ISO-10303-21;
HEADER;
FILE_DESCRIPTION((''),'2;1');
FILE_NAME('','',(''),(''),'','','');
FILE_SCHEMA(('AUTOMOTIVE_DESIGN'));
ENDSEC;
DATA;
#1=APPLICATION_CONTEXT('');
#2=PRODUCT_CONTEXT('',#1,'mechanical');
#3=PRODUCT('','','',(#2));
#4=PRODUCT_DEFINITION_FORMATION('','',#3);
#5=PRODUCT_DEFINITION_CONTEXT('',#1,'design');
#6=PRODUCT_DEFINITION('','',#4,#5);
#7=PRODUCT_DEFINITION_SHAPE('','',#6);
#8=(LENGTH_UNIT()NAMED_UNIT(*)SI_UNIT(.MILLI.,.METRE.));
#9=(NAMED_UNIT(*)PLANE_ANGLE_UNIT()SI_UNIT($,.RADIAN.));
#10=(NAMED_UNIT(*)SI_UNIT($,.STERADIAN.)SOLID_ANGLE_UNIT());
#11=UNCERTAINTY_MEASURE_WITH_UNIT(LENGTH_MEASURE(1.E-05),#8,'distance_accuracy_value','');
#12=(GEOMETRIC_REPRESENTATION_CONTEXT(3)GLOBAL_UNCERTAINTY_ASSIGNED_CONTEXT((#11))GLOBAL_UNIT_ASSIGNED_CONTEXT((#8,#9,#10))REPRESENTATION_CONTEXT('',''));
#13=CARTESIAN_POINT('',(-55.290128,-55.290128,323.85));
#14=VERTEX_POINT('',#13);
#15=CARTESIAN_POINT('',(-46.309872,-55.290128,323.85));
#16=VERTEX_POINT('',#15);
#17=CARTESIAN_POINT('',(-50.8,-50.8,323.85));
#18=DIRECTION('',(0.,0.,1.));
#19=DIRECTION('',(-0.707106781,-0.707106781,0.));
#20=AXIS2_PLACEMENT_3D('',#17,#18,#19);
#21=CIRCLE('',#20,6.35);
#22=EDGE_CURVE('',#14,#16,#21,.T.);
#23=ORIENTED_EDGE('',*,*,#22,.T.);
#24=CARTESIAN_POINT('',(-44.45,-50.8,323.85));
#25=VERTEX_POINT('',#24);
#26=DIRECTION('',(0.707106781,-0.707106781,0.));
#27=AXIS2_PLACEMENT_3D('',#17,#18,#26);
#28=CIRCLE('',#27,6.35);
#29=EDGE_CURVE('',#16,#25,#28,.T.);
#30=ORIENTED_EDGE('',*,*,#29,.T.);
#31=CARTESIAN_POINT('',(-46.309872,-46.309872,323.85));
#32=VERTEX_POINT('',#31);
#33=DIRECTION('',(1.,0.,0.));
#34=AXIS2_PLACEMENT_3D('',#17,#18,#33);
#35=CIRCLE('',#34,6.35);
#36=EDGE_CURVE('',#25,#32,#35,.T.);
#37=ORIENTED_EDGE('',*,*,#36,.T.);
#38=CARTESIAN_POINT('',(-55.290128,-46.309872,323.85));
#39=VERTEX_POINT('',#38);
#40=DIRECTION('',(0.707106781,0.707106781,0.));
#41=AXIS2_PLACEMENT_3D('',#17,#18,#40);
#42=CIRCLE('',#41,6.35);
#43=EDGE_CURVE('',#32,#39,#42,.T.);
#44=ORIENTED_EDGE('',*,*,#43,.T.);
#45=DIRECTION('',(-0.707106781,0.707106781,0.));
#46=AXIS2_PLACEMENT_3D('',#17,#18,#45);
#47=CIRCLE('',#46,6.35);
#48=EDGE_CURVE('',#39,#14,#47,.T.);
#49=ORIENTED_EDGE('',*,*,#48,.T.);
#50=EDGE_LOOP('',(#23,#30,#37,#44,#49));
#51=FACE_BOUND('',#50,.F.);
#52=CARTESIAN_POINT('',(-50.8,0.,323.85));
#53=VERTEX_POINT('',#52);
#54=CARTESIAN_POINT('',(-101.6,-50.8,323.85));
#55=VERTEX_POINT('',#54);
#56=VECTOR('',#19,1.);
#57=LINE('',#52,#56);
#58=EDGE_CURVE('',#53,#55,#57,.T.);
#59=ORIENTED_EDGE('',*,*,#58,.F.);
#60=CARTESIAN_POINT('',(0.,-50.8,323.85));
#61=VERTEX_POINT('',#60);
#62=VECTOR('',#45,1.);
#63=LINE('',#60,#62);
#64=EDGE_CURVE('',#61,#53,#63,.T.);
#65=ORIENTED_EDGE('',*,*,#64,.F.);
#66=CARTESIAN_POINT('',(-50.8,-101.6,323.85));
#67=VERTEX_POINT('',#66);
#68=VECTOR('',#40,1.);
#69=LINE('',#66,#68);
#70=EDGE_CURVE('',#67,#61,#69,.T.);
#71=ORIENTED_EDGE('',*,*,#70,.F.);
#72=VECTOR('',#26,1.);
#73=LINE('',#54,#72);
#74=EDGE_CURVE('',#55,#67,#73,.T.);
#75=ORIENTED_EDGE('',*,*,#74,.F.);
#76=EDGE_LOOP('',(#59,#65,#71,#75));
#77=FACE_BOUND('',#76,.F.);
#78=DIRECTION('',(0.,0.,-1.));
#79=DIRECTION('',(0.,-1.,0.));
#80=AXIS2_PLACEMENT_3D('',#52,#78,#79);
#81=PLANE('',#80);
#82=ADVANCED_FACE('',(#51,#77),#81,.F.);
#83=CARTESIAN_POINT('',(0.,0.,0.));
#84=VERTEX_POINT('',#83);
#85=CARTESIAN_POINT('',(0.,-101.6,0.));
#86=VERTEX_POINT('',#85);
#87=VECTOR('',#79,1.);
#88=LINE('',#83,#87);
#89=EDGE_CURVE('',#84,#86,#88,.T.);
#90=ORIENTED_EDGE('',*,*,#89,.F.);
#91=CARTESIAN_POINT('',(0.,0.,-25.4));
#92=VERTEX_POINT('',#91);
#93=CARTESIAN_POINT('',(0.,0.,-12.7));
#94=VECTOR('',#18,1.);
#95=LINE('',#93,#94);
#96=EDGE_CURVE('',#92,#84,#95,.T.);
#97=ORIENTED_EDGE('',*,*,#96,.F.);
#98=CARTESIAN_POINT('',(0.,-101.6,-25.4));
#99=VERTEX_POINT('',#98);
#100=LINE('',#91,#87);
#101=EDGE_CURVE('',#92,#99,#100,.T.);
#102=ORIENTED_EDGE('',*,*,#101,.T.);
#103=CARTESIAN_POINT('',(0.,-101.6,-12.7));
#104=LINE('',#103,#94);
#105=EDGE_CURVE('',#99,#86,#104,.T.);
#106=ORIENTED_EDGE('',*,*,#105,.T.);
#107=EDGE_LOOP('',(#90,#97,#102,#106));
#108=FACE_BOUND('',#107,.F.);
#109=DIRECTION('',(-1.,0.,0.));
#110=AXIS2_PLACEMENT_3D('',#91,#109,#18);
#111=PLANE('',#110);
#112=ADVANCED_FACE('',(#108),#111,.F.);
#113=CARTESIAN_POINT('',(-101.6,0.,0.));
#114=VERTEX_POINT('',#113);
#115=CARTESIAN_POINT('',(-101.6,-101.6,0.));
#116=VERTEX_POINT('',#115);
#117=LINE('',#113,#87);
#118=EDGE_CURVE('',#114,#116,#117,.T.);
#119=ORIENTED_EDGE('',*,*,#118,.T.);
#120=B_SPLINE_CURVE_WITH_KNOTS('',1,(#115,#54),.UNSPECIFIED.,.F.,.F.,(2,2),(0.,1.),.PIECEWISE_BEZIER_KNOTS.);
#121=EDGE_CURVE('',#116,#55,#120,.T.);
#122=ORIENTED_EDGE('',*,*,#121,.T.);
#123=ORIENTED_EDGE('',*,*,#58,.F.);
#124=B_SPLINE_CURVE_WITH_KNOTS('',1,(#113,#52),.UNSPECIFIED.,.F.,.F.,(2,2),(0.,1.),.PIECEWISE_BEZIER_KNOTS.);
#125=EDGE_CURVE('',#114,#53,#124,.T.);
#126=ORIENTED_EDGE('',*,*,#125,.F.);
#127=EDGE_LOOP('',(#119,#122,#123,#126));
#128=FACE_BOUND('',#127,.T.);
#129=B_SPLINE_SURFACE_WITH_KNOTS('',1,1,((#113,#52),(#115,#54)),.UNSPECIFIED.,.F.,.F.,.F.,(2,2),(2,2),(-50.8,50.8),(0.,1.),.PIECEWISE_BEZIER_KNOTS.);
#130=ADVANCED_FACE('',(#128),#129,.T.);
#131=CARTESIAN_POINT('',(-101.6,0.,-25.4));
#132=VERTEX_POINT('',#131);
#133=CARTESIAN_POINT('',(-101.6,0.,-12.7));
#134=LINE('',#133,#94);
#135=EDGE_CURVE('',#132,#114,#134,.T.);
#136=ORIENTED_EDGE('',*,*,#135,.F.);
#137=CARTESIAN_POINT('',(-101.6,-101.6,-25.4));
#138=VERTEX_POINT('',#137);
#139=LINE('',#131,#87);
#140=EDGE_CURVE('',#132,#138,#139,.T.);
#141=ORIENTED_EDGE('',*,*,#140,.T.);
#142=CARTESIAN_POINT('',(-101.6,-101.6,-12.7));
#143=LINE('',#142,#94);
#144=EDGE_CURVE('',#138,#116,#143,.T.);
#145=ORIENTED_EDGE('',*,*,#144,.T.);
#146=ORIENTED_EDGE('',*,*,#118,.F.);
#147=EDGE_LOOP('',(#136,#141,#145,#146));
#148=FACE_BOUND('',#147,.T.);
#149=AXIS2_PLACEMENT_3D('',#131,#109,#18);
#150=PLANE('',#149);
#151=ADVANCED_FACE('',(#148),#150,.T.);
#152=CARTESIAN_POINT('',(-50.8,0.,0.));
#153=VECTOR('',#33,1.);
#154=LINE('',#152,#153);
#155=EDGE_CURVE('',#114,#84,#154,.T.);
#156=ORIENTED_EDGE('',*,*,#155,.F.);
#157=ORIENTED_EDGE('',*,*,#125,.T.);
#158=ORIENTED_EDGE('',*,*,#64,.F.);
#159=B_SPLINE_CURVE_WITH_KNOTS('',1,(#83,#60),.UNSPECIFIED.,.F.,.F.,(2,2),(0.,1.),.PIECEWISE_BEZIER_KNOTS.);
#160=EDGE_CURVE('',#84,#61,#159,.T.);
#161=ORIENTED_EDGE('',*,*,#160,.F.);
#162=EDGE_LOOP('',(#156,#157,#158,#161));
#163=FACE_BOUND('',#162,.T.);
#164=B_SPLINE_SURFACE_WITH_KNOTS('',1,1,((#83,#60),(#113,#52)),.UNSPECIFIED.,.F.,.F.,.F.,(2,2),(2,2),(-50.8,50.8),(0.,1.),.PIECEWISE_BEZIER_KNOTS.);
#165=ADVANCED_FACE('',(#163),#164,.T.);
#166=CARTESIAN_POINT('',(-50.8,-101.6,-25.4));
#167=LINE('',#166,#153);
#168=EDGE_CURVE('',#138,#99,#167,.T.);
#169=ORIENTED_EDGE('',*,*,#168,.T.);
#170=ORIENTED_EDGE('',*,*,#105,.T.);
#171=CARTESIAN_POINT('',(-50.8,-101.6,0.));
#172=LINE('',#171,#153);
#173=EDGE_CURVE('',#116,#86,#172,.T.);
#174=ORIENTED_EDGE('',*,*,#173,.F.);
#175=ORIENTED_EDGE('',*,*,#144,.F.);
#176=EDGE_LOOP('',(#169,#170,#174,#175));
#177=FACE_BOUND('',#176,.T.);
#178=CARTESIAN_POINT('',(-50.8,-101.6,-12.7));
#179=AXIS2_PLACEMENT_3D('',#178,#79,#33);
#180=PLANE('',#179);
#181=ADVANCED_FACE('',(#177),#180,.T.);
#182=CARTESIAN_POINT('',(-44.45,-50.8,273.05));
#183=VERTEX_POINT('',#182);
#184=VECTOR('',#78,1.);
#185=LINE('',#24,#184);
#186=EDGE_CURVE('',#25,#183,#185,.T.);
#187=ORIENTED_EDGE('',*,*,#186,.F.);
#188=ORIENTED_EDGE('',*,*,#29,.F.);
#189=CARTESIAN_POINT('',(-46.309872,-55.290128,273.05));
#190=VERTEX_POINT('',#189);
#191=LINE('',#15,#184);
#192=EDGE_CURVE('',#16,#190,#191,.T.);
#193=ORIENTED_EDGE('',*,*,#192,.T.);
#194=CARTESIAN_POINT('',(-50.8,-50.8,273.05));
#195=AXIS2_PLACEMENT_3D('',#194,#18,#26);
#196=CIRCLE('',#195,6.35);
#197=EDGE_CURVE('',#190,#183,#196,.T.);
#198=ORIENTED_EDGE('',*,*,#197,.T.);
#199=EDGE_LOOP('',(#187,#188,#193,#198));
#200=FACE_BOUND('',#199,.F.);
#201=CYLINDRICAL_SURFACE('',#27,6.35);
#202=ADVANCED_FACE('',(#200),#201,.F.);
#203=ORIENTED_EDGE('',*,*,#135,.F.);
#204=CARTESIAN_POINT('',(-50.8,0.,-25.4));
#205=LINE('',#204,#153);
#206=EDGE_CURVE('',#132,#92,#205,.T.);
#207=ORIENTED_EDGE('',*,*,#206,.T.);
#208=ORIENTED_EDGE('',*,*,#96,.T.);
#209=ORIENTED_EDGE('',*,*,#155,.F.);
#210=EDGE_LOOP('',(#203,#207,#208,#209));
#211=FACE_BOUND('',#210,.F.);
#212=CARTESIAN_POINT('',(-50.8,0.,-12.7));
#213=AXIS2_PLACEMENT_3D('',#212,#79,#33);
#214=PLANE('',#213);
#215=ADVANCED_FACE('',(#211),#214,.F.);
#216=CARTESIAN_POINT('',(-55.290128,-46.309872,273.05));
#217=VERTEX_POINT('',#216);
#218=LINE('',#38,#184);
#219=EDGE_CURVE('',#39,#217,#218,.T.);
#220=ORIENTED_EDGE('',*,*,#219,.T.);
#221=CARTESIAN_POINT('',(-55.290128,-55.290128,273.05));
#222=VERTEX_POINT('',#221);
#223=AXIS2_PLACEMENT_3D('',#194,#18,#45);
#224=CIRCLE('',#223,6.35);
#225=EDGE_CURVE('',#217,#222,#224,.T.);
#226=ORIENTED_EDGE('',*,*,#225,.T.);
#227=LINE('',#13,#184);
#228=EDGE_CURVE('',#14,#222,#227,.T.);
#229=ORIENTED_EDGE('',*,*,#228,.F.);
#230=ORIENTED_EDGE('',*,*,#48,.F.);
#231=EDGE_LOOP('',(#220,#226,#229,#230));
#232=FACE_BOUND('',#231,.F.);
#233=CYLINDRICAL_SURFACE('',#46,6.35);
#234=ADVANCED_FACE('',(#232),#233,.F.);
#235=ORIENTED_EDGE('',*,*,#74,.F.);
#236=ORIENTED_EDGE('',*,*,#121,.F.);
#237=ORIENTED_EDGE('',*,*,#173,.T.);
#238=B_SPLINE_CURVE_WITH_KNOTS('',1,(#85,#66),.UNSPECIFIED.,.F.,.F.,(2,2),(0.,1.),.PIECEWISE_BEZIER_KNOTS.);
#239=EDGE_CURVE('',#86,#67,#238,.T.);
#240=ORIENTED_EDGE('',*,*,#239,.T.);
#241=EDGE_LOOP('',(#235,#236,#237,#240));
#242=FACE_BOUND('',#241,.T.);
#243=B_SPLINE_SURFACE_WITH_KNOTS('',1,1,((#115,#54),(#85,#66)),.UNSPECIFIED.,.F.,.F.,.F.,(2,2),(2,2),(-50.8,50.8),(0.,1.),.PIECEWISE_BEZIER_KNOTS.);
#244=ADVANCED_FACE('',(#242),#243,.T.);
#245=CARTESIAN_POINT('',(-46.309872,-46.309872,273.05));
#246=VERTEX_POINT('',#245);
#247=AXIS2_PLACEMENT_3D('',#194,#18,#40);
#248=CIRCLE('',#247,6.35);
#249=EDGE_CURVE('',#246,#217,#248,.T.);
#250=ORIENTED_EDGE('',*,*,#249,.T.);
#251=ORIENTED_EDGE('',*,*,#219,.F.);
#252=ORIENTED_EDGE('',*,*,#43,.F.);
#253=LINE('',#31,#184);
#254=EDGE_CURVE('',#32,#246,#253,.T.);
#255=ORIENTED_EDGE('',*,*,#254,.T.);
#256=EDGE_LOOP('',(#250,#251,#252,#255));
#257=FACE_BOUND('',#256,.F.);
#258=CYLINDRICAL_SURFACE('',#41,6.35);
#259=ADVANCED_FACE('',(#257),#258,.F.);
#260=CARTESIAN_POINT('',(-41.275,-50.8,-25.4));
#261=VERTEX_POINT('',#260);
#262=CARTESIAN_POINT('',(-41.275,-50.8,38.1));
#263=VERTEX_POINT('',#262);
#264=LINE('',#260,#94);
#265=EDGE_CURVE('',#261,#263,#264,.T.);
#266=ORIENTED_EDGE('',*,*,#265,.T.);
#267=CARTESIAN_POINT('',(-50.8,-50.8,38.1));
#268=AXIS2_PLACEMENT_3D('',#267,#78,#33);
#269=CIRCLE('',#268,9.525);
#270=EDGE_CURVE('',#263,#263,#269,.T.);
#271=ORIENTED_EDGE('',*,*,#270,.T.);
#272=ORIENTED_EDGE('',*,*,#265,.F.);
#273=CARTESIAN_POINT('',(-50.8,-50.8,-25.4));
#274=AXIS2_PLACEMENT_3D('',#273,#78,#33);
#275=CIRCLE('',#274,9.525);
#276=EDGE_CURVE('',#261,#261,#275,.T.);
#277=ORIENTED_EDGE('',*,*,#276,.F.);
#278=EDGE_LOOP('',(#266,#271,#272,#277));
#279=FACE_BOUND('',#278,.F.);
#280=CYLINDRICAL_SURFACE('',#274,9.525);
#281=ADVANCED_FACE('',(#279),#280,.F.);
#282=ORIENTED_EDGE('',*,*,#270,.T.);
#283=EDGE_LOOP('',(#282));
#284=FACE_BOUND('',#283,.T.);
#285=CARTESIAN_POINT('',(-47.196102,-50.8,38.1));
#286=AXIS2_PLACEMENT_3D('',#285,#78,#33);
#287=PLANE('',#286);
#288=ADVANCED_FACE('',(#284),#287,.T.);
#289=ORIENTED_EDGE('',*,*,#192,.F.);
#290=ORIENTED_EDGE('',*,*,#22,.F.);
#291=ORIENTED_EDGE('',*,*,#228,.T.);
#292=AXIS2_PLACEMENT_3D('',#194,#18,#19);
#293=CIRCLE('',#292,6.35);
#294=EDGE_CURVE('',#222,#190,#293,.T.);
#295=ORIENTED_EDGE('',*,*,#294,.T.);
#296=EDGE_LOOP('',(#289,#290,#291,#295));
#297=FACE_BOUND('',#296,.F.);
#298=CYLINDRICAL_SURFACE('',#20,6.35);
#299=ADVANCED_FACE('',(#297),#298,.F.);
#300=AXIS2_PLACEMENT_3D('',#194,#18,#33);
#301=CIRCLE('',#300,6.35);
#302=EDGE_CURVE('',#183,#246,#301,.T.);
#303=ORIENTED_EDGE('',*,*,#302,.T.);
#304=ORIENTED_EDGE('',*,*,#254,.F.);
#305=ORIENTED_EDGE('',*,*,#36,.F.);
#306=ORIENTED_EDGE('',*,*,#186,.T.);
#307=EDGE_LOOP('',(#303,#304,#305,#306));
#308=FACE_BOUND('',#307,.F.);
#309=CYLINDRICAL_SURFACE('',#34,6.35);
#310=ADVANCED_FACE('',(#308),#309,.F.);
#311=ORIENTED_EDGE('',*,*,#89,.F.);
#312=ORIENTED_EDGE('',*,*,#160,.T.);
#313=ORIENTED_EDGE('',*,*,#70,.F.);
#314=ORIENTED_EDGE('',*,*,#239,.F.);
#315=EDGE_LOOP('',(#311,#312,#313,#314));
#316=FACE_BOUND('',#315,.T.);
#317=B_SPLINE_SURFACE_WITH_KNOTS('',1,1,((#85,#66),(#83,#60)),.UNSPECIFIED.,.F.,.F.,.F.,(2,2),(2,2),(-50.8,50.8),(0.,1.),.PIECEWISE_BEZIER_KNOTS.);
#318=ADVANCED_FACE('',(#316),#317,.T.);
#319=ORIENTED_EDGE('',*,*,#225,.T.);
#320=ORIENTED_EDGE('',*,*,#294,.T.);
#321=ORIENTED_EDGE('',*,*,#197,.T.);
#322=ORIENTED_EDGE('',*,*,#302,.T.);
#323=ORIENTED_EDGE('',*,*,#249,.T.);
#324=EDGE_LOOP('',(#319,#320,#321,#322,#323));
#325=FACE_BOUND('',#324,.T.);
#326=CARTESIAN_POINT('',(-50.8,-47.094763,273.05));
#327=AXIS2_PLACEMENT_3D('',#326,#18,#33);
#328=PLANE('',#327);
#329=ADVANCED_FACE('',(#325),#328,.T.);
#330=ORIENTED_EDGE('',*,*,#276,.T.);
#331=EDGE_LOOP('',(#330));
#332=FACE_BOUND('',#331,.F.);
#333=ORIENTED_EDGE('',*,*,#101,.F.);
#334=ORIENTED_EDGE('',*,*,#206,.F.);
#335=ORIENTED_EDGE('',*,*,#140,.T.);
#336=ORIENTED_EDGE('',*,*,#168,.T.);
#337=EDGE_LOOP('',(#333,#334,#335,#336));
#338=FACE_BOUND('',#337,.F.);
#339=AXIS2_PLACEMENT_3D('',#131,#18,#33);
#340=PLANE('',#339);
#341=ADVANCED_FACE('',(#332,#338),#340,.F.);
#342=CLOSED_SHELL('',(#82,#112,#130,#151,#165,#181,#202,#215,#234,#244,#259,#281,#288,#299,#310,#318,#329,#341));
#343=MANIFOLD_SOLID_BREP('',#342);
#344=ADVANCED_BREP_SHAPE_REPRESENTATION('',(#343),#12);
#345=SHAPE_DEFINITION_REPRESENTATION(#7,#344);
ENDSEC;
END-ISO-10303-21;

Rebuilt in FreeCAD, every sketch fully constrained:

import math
import FreeCAD as App
import Part
import Sketcher
Q = App.Units.Quantity

doc = App.newDocument("Part")
body = doc.addObject("PartDesign::Body", "Body")

sketch1 = body.newObject("Sketcher::SketchObject", "Sketch")
sketch1.AttachmentSupport = (doc.getObject("XZ_Plane"), [""])
sketch1.MapMode = "FlatFace"
sketch1.addGeometry([
    Part.LineSegment(App.Vector(-101.6, 0, 0), App.Vector(-101.6, -25.4, 0)),
    Part.LineSegment(App.Vector(-101.6, -25.4, 0), App.Vector(0, -25.4, 0)),
    Part.LineSegment(App.Vector(0, -25.4, 0), App.Vector(0, 0, 0)),
    Part.LineSegment(App.Vector(0, 0, 0), App.Vector(-101.6, 0, 0)),
], False)
sketch1.addConstraint([
    Sketcher.Constraint("Coincident", 0, 2, 1, 1),
    Sketcher.Constraint("Coincident", 1, 2, 2, 1),
    Sketcher.Constraint("Coincident", 2, 2, 3, 1),
    Sketcher.Constraint("Coincident", 3, 2, 0, 1),
    Sketcher.Constraint("Vertical", 0),
    Sketcher.Constraint("Horizontal", 1),
    Sketcher.Constraint("Vertical", 2),
    Sketcher.Constraint("Horizontal", 3),
    Sketcher.Constraint("Coincident", 2, 2, -1, 1),
    Sketcher.Constraint("DistanceX", 1, 1, 1, 2, Q("4 in")),
    Sketcher.Constraint("DistanceY", 0, 2, 0, 1, Q("1 in")),
])
pad1 = body.newObject("PartDesign::Pad", "Pad")
pad1.Profile = sketch1
pad1.Length = Q("4 in")

sketch2 = body.newObject("Sketcher::SketchObject", "Sketch001")
sketch2.AttachmentSupport = (doc.getObject("XY_Plane"), [""])
sketch2.MapMode = "FlatFace"
sketch2.addGeometry([
    Part.LineSegment(App.Vector(-101.6, 0, 0), App.Vector(-101.6, -101.6, 0)),
    Part.LineSegment(App.Vector(-101.6, -101.6, 0), App.Vector(0, -101.6, 0)),
    Part.LineSegment(App.Vector(0, -101.6, 0), App.Vector(0, 0, 0)),
    Part.LineSegment(App.Vector(0, 0, 0), App.Vector(-101.6, 0, 0)),
], False)
sketch2.addConstraint([
    Sketcher.Constraint("Coincident", 0, 2, 1, 1),
    Sketcher.Constraint("Coincident", 1, 2, 2, 1),
    Sketcher.Constraint("Coincident", 2, 2, 3, 1),
    Sketcher.Constraint("Coincident", 3, 2, 0, 1),
    Sketcher.Constraint("Vertical", 0),
    Sketcher.Constraint("Horizontal", 1),
    Sketcher.Constraint("Vertical", 2),
    Sketcher.Constraint("Horizontal", 3),
    Sketcher.Constraint("Coincident", 2, 2, -1, 1),
    Sketcher.Constraint("Equal", 3, 0),
    Sketcher.Constraint("DistanceX", 1, 1, 1, 2, Q("4 in")),
])

sketch3 = body.newObject("Sketcher::SketchObject", "Sketch002")
sketch3.AttachmentSupport = (doc.getObject("XY_Plane"), [""])
sketch3.MapMode = "FlatFace"
sketch3.AttachmentOffset = App.Placement(App.Vector(0, 0, 12.75 * 25.4), App.Rotation())
sketch3.addGeometry([
    Part.LineSegment(App.Vector(0, -50.8, 0), App.Vector(-50.8, 0, 0)),
    Part.LineSegment(App.Vector(-50.8, 0, 0), App.Vector(-101.6, -50.8, 0)),
    Part.LineSegment(App.Vector(-101.6, -50.8, 0), App.Vector(-50.8, -101.6, 0)),
    Part.LineSegment(App.Vector(-50.8, -101.6, 0), App.Vector(0, -50.8, 0)),
], False)
sketch3.addConstraint([
    Sketcher.Constraint("Coincident", 0, 2, 1, 1),
    Sketcher.Constraint("Coincident", 1, 2, 2, 1),
    Sketcher.Constraint("Coincident", 2, 2, 3, 1),
    Sketcher.Constraint("Coincident", 3, 2, 0, 1),
    Sketcher.Constraint("PointOnObject", 0, 2, -1),
    Sketcher.Constraint("PointOnObject", 3, 2, -2),
    Sketcher.Constraint("Perpendicular", 0, 1),
    Sketcher.Constraint("Perpendicular", 1, 2),
    Sketcher.Constraint("Perpendicular", 2, 3),
    Sketcher.Constraint("Horizontal", 1, 2, 3, 2),
    Sketcher.Constraint("Vertical", 0, 2, 2, 2),
    Sketcher.Constraint("DistanceX", 0, 2, -1, 1, Q("2 in")),
])

additiveloft = body.newObject("PartDesign::AdditiveLoft", "AdditiveLoft")
additiveloft.Profile = sketch2
additiveloft.Sections = [sketch3]

sketch4 = body.newObject("Sketcher::SketchObject", "Sketch003")
sketch4.AttachmentSupport = (doc.getObject("XY_Plane"), [""])
sketch4.MapMode = "FlatFace"
sketch4.AttachmentOffset = App.Placement(App.Vector(0, 0, 12.75 * 25.4), App.Rotation())
sketch4.addGeometry([
    Part.ArcOfCircle(Part.Circle(App.Vector(-50.8, -50.8, 0), App.Vector(0, 0, 1), 6.35), math.radians(45), math.radians(135)),
    Part.ArcOfCircle(Part.Circle(App.Vector(-50.8, -50.8, 0), App.Vector(0, 0, 1), 6.35), math.radians(135), math.radians(225)),
    Part.ArcOfCircle(Part.Circle(App.Vector(-50.8, -50.8, 0), App.Vector(0, 0, 1), 6.35), math.radians(-135), math.radians(-45)),
    Part.ArcOfCircle(Part.Circle(App.Vector(-50.8, -50.8, 0), App.Vector(0, 0, 1), 6.35), math.radians(-45), math.radians(0)),
    Part.ArcOfCircle(Part.Circle(App.Vector(-50.8, -50.8, 0), App.Vector(0, 0, 1), 6.35), math.radians(0), math.radians(45)),
], False)
sketch4.addConstraint([
    Sketcher.Constraint("Tangent", 0, 2, 1, 1),
    Sketcher.Constraint("Tangent", 1, 2, 2, 1),
    Sketcher.Constraint("Tangent", 2, 2, 3, 1),
    Sketcher.Constraint("Tangent", 3, 2, 4, 1),
    Sketcher.Constraint("Tangent", 4, 2, 0, 1),
    Sketcher.Constraint("Coincident", 2, 3, 0, 3),
    Sketcher.Constraint("Horizontal", 1, 2, 2, 2),
    Sketcher.Constraint("Horizontal", 4, 3, 3, 2),
    Sketcher.Constraint("Horizontal", 0, 2, 4, 2),
    Sketcher.Constraint("Vertical", 0, 2, 1, 2),
    Sketcher.Constraint("Radius", 0, Q("0.25 in")),
    Sketcher.Constraint("DistanceX", 0, 3, -1, 1, Q("2 in")),
    Sketcher.Constraint("DistanceY", 0, 3, -1, 1, Q("2 in")),
    Sketcher.Constraint("DistanceX", 0, 2, -1, 1, 55.290128),
])
pocket1 = body.newObject("PartDesign::Pocket", "Pocket")
pocket1.Profile = sketch4
pocket1.Length = Q("2 in")

sketch5 = body.newObject("Sketcher::SketchObject", "Sketch004")
sketch5.AttachmentSupport = (doc.getObject("XY_Plane"), [""])
sketch5.MapMode = "FlatFace"
sketch5.AttachmentOffset = App.Placement(App.Vector(0, 0, -1 * 25.4), App.Rotation())
sketch5.addGeometry(Part.Circle(App.Vector(-50.8, -50.8, 0), App.Vector(0, 0, 1), 9.525), False)
sketch5.addConstraint([
    Sketcher.Constraint("Diameter", 0, Q("0.75 in")),
    Sketcher.Constraint("DistanceX", 0, 3, -1, 1, Q("2 in")),
    Sketcher.Constraint("DistanceY", 0, 3, -1, 1, Q("2 in")),
])
pocket2 = body.newObject("PartDesign::Pocket", "Pocket001")
pocket2.Profile = sketch5
pocket2.Length = Q("2.5 in")
pocket2.Reversed = True

doc.recompute()
